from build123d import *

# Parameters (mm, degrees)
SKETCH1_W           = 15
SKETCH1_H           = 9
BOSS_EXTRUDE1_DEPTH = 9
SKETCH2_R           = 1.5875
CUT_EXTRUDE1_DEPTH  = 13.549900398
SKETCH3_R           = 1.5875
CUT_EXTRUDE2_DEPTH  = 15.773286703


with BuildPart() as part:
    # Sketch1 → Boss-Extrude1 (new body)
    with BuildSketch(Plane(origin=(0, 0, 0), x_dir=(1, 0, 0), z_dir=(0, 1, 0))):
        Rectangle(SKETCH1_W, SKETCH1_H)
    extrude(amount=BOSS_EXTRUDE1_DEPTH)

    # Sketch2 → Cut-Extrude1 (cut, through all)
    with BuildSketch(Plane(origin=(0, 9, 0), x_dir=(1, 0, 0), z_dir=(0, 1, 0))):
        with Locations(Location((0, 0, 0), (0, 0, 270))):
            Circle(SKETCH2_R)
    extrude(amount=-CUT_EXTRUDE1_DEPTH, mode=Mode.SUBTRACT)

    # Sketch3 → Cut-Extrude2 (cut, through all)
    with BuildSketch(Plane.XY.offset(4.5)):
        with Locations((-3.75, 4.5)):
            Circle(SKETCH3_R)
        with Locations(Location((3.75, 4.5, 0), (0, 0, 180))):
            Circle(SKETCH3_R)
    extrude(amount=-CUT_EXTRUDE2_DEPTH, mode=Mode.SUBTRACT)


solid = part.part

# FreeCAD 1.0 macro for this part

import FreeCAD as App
import Part
import Sketcher
Q = App.Units.Quantity

doc = App.newDocument("Part")
params = doc.addObject("Spreadsheet::Sheet", "Params")
for row, (alias, value) in enumerate([
    ("sketch1_width", "15 mm"),
    ("sketch1_height", "9 mm"),
    ("pad1_length", "9 mm"),
], start=1):
    params.set(f"A{row}", alias)
    params.set(f"B{row}", "=" + value)
    params.setAlias(f"B{row}", alias)

body = doc.addObject("PartDesign::Body", "Body")

sketch1 = body.newObject("Sketcher::SketchObject", "Sketch")
sketch1.AttachmentSupport = (doc.getObject("XZ_Plane"), [""])
sketch1.MapMode = "FlatFace"
sketch1.addGeometry([
    Part.LineSegment(App.Vector(-8, -4, 0), App.Vector(-8, 4, 0)),
    Part.LineSegment(App.Vector(-8, 4, 0), App.Vector(8, 4, 0)),
    Part.LineSegment(App.Vector(8, 4, 0), App.Vector(8, -4, 0)),
    Part.LineSegment(App.Vector(8, -4, 0), App.Vector(-8, -4, 0)),
], False)
sketch1.addConstraint([
    Sketcher.Constraint("Coincident", 0, 2, 1, 1),
    Sketcher.Constraint("Coincident", 1, 2, 2, 1),
    Sketcher.Constraint("Coincident", 2, 2, 3, 1),
    Sketcher.Constraint("Coincident", 3, 2, 0, 1),
    Sketcher.Constraint("Vertical", 0),
    Sketcher.Constraint("Horizontal", 1),
    Sketcher.Constraint("Vertical", 2),
    Sketcher.Constraint("Horizontal", 3),
    Sketcher.Constraint("Symmetric", 0, 2, 2, 2, -1, 1),
    Sketcher.Constraint("DistanceX", 1, 1, 1, 2, Q("15 mm")),
    Sketcher.Constraint("DistanceY", 0, 1, 0, 2, Q("9 mm")),
])
sketch1.setExpression("Constraints[9]", "Params.sketch1_width")
sketch1.setExpression("Constraints[10]", "Params.sketch1_height")
pad1 = body.newObject("PartDesign::Pad", "Pad")
pad1.Profile = sketch1
pad1.setExpression("Length", "Params.pad1_length")
pad1.Reversed = True

sketch2 = body.newObject("Sketcher::SketchObject", "Sketch001")
sketch2.AttachmentSupport = (doc.getObject("XZ_Plane"), [""])
sketch2.MapMode = "FlatFace"
sketch2.AttachmentOffset = App.Placement(App.Vector(0, 0, -9), App.Rotation())
sketch2.addGeometry(Part.Circle(App.Vector(0, 0, 0), App.Vector(0, 0, 1), 1.6), False)
sketch2.addConstraint([
    Sketcher.Constraint("Coincident", 0, 3, -1, 1),
    Sketcher.Constraint("Diameter", 0, Q("3.175 mm")),
])
pocket1 = body.newObject("PartDesign::Pocket", "Pocket")
pocket1.Profile = sketch2
pocket1.Type = "ThroughAll"
pocket1.Reversed = True

sketch3 = body.newObject("Sketcher::SketchObject", "Sketch002")
sketch3.AttachmentSupport = (doc.getObject("XY_Plane"), [""])
sketch3.MapMode = "FlatFace"
sketch3.AttachmentOffset = App.Placement(App.Vector(0, 0, 4.5), App.Rotation())
sketch3.addGeometry([
    Part.Circle(App.Vector(-3.8, 4.5, 0), App.Vector(0, 0, 1), 1.6),
    Part.Circle(App.Vector(3.8, 4.5, 0), App.Vector(0, 0, 1), 1.6),
], False)
sketch3.addConstraint([
    Sketcher.Constraint("Equal", 0, 1),
    Sketcher.Constraint("Symmetric", 0, 3, 1, 3, -2),
    Sketcher.Constraint("Diameter", 0, Q("3.175 mm")),
    Sketcher.Constraint("DistanceY", -1, 1, 0, 3, Q("4.5 mm")),
    Sketcher.Constraint("DistanceX", 0, 3, 1, 3, Q("7.5 mm")),
])
pocket2 = body.newObject("PartDesign::Pocket", "Pocket001")
pocket2.Profile = sketch3
pocket2.Type = "ThroughAll"

doc.recompute()
